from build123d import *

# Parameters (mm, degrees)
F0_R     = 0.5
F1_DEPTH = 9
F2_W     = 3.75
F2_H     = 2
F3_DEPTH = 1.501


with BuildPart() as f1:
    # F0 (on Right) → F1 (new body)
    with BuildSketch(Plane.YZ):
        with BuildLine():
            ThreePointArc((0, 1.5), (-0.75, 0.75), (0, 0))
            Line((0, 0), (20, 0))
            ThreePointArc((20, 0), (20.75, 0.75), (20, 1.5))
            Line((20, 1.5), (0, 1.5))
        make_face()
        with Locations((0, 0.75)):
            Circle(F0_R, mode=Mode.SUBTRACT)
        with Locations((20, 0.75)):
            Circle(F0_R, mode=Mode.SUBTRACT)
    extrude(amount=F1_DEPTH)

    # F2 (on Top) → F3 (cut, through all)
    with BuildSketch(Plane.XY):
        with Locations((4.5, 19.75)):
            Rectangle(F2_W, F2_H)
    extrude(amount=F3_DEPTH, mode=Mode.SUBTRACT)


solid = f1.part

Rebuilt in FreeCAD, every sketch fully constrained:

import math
import FreeCAD as App
import Part
import Sketcher

doc = App.newDocument("Part")
params = doc.addObject("Spreadsheet::Sheet", "Params")
for row, (alias, value) in enumerate([
    ("sketch1_diameter", "1 mm"),
    ("sketch1_width", "20 mm"),
    ("sketch1_radius", "0.75 mm"),
    ("pad1_length", "9 mm"),
    ("sketch2_height", "2 mm"),
    ("sketch2_width", "3.75 mm"),
], start=1):
    params.set(f"A{row}", alias)
    params.set(f"B{row}", "=" + value)
    params.setAlias(f"B{row}", alias)

body = doc.addObject("PartDesign::Body", "Body")

sketch1 = doc.addObject("Sketcher::SketchObject", "Sketch")
body.addObject(sketch1)
sketch1.AttachmentSupport = (doc.YZ_Plane, [""])
sketch1.MapMode = "FlatFace"
sketch1.addGeometry(Part.ArcOfCircle(Part.Circle(App.Vector(0, 0.8, 0), App.Vector(0, 0, 1), 0.8), math.radians(90), math.radians(270)), False)
sketch1.addGeometry(Part.LineSegment(App.Vector(0, 0, 0), App.Vector(20, 0, 0)), False)
sketch1.addGeometry(Part.ArcOfCircle(Part.Circle(App.Vector(20, 0.8, 0), App.Vector(0, 0, 1), 0.8), math.radians(-90), math.radians(90)), False)
sketch1.addGeometry(Part.LineSegment(App.Vector(20, 1.5, 0), App.Vector(0, 1.5, 0)), False)
sketch1.addGeometry(Part.Circle(App.Vector(0, 0.8, 0), App.Vector(0, 0, 1), 0.5), False)
sketch1.addGeometry(Part.Circle(App.Vector(20, 0.8, 0), App.Vector(0, 0, 1), 0.5), False)
sketch1.addConstraint(Sketcher.Constraint("Tangent", 0, 2, 1, 1))
sketch1.addConstraint(Sketcher.Constraint("Tangent", 1, 2, 2, 1))
sketch1.addConstraint(Sketcher.Constraint("Tangent", 2, 2, 3, 1))
sketch1.addConstraint(Sketcher.Constraint("Tangent", 3, 2, 0, 1))
sketch1.addConstraint(Sketcher.Constraint("Horizontal", 1))
sketch1.addConstraint(Sketcher.Constraint("Horizontal", 3))
sketch1.addConstraint(Sketcher.Constraint("Coincident", 0, 2, -1, 1))
sketch1.addConstraint(Sketcher.Constraint("Coincident", 4, 3, 0, 3))
sketch1.addConstraint(Sketcher.Constraint("Coincident", 5, 3, 2, 3))
sketch1.addConstraint(Sketcher.Constraint("Equal", 4, 5))
sketch1.addConstraint(Sketcher.Constraint("Diameter", 4, 1.0))
sketch1.addConstraint(Sketcher.Constraint("DistanceX", 1, 1, 1, 2, 20.0))
sketch1.addConstraint(Sketcher.Constraint("Radius", 0, 0.75))
sketch1.setExpression("Constraints[10]", "Params.sketch1_diameter")
sketch1.setExpression("Constraints[11]", "Params.sketch1_width")
sketch1.setExpression("Constraints[12]", "Params.sketch1_radius")
pad1 = doc.addObject("PartDesign::Pad", "Pad")
body.addObject(pad1)
pad1.Profile = sketch1
pad1.setExpression("Length", "Params.pad1_length")

sketch2 = doc.addObject("Sketcher::SketchObject", "Sketch001")
body.addObject(sketch2)
sketch2.AttachmentSupport = (doc.XY_Plane, [""])
sketch2.MapMode = "FlatFace"
sketch2.addGeometry(Part.LineSegment(App.Vector(2.6, 20.8, 0), App.Vector(2.6, 18.8, 0)), False)
sketch2.addGeometry(Part.LineSegment(App.Vector(2.6, 18.8, 0), App.Vector(6.4, 18.8, 0)), False)
sketch2.addGeometry(Part.LineSegment(App.Vector(6.4, 18.8, 0), App.Vector(6.4, 20.8, 0)), False)
sketch2.addGeometry(Part.LineSegment(App.Vector(6.4, 20.8, 0), App.Vector(2.6, 20.8, 0)), False)
sketch2.addConstraint(Sketcher.Constraint("Coincident", 0, 2, 1, 1))
sketch2.addConstraint(Sketcher.Constraint("Coincident", 1, 2, 2, 1))
sketch2.addConstraint(Sketcher.Constraint("Coincident", 2, 2, 3, 1))
sketch2.addConstraint(Sketcher.Constraint("Coincident", 3, 2, 0, 1))
sketch2.addConstraint(Sketcher.Constraint("Vertical", 0))
sketch2.addConstraint(Sketcher.Constraint("Horizontal", 1))
sketch2.addConstraint(Sketcher.Constraint("Vertical", 2))
sketch2.addConstraint(Sketcher.Constraint("Horizontal", 3))
sketch2.addConstraint(Sketcher.Constraint("DistanceY", 0, 2, 0, 1, 2.0))
sketch2.addConstraint(Sketcher.Constraint("DistanceX", 1, 1, 1, 2, 3.75))
sketch2.addConstraint(Sketcher.Constraint("DistanceY", -1, 1, 0, 2, 18.75))
sketch2.addConstraint(Sketcher.Constraint("DistanceX", -1, 1, 0, 2, 2.625))
sketch2.setExpression("Constraints[8]", "Params.sketch2_height")
sketch2.setExpression("Constraints[9]", "Params.sketch2_width")
pocket1 = doc.addObject("PartDesign::Pocket", "Pocket")
body.addObject(pocket1)
pocket1.Profile = sketch2
pocket1.Type = "ThroughAll"
pocket1.Reversed = True

doc.recompute()
